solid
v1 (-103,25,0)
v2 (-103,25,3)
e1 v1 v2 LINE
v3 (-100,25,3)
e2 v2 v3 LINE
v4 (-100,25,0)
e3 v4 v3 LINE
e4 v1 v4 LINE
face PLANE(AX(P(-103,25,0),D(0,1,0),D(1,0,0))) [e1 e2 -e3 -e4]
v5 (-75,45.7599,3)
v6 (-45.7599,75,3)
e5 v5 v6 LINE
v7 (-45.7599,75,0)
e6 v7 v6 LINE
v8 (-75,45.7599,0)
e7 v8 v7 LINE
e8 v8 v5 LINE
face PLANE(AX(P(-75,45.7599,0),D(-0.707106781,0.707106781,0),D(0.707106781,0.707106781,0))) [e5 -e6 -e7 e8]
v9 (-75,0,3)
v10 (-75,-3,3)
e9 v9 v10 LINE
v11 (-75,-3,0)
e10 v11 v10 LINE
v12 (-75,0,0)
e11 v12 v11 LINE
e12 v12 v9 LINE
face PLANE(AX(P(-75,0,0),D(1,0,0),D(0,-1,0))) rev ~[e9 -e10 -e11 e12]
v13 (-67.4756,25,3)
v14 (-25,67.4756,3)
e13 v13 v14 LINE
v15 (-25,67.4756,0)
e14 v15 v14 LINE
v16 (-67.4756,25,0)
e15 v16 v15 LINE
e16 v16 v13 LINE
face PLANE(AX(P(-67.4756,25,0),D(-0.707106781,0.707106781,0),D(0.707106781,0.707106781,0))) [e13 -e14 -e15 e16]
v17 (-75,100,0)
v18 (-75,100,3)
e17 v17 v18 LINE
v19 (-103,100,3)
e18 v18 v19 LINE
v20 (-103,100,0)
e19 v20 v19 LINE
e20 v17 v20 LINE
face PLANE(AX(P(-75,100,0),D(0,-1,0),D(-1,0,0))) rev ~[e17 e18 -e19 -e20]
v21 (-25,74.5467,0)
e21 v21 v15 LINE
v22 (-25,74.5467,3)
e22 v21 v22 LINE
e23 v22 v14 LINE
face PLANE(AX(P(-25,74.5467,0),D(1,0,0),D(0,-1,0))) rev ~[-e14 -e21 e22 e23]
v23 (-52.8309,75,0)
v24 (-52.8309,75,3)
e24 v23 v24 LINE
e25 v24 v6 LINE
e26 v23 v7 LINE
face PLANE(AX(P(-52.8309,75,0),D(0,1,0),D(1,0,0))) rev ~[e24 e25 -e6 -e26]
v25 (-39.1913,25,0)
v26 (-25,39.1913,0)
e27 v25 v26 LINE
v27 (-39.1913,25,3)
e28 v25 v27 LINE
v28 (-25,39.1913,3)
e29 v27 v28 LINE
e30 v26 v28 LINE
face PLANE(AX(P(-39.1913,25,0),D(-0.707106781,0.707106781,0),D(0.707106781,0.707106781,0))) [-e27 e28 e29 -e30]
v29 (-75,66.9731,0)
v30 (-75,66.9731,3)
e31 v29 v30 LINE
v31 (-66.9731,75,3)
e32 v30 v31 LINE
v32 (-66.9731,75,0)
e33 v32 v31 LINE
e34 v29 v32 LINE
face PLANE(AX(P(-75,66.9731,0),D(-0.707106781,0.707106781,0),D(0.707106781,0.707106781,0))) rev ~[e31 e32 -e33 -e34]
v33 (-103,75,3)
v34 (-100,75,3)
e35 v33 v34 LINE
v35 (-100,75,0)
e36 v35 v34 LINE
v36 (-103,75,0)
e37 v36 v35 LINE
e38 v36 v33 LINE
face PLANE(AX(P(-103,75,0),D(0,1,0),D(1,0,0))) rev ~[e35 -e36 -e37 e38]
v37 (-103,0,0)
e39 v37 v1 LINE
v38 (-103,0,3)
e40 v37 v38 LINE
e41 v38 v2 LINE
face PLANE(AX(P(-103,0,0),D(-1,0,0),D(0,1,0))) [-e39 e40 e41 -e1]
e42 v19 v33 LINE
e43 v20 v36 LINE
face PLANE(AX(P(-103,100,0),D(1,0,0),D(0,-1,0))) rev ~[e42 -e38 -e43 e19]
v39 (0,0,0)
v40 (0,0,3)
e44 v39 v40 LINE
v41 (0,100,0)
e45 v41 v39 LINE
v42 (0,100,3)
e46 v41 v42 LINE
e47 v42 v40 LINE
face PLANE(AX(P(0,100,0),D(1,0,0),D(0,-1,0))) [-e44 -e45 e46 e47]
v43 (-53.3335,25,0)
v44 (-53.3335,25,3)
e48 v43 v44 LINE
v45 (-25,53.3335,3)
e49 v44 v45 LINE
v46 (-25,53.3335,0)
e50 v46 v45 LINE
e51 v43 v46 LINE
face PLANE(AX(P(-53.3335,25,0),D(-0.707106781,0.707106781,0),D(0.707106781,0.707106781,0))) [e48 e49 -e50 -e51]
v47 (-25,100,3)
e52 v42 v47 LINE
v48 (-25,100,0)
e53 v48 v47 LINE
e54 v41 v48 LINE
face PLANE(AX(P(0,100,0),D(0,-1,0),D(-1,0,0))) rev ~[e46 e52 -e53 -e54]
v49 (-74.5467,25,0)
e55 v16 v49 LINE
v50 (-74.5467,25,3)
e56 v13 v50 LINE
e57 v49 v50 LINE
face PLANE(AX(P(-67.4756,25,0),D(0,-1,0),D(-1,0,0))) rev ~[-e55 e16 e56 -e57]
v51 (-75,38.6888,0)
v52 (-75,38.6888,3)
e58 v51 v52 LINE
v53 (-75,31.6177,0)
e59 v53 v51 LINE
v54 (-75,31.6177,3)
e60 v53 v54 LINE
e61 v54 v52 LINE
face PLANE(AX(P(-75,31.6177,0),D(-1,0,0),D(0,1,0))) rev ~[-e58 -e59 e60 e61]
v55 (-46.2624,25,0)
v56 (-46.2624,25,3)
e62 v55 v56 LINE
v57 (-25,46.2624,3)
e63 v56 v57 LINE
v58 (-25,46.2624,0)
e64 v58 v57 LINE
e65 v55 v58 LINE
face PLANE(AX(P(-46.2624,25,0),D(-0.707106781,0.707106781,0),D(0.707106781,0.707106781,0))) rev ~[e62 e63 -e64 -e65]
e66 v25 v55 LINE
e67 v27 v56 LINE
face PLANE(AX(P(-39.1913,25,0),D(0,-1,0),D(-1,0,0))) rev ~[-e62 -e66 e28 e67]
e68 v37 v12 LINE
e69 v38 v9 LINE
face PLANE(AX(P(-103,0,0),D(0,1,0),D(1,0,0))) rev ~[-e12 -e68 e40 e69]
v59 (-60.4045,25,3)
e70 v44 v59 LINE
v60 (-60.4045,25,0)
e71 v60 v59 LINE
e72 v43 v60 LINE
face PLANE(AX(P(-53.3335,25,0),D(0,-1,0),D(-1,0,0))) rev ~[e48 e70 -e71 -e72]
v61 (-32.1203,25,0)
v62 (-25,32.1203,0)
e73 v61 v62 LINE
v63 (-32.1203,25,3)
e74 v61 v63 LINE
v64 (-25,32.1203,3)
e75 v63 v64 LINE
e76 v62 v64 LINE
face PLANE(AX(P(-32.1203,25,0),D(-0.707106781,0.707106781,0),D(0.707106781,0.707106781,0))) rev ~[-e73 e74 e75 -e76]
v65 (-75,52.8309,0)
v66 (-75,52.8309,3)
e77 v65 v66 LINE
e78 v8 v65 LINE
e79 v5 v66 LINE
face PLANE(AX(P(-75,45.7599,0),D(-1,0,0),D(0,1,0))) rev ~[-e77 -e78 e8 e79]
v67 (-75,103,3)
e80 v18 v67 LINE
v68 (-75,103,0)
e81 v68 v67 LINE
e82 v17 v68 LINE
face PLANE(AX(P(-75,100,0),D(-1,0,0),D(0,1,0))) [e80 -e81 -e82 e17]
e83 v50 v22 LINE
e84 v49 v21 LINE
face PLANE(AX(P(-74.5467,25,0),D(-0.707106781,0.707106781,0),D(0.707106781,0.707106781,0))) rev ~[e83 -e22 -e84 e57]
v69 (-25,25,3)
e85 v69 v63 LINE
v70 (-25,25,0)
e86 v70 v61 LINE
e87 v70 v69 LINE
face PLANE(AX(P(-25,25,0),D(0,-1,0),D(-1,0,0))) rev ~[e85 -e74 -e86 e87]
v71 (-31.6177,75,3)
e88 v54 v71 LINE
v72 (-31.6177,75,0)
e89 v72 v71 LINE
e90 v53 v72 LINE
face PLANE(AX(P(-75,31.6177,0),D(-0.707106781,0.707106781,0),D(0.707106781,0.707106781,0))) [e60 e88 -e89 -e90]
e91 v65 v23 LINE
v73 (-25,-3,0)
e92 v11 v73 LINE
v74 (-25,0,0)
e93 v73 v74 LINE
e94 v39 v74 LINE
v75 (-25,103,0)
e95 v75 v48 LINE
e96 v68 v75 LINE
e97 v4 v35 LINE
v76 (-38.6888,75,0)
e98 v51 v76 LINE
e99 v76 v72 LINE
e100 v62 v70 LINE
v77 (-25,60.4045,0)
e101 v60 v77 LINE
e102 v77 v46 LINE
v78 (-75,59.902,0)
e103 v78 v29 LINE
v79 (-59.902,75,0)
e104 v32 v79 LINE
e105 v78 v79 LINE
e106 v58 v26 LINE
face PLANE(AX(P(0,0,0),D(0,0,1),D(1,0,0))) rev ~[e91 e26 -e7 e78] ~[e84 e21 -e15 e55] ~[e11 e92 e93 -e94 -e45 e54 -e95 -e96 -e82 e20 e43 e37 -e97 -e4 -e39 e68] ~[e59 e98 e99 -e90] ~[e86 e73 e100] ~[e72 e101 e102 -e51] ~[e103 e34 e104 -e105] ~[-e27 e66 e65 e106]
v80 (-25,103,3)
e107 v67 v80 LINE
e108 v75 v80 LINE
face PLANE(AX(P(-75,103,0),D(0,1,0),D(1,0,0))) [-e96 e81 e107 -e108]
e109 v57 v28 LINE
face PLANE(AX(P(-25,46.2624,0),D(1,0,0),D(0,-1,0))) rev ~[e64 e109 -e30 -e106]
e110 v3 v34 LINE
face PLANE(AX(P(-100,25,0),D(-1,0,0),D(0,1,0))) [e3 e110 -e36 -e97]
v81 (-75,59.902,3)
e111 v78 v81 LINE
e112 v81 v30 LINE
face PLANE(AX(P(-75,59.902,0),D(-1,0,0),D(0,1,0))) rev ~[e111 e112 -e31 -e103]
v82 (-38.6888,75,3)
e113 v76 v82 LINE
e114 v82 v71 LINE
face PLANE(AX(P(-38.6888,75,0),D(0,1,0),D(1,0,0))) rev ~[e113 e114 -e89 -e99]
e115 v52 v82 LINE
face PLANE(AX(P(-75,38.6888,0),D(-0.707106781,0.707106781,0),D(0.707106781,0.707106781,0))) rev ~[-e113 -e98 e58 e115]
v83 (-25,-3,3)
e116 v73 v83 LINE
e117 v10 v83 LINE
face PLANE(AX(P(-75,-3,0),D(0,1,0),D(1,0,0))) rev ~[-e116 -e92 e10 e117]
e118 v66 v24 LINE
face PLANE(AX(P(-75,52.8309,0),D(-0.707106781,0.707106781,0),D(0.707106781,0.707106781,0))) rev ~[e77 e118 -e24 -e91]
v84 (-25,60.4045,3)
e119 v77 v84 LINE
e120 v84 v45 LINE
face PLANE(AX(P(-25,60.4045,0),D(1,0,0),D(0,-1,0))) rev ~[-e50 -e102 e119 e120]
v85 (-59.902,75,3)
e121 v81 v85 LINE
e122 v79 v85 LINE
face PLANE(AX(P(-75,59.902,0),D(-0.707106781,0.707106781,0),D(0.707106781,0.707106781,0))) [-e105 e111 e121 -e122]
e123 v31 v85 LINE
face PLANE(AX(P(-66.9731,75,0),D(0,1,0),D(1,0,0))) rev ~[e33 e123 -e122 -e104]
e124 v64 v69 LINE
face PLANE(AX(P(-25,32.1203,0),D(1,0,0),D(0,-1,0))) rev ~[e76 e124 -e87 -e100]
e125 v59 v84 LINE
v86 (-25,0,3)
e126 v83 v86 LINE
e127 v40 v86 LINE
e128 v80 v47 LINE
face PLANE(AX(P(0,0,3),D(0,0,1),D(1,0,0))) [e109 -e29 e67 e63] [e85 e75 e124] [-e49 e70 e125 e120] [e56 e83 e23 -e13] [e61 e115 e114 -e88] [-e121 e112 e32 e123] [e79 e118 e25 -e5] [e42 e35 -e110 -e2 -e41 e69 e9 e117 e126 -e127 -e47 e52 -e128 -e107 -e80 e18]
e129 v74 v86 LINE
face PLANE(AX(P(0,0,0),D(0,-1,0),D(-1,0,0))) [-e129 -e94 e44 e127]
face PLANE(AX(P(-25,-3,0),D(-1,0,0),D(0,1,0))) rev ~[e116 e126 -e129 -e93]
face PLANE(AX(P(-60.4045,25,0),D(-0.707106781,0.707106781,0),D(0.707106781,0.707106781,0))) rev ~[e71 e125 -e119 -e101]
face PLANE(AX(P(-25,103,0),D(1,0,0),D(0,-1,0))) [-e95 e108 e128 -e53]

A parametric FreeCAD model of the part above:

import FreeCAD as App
import Part
import Sketcher
Q = App.Units.Quantity


def add_polygon(sketch, points):
    """Adds a closed chain of lines whose ends are joined by coincident constraints."""
    first, n = sketch.GeometryCount, len(points)
    for a, b in zip(points, points[1:] + points[:1]):
        sketch.addGeometry(Part.LineSegment(App.Vector(*a, 0), App.Vector(*b, 0)), False)
    for i in range(n):
        sketch.addConstraint(Sketcher.Constraint("Coincident", first + i, 2, first + (i + 1) % n, 1))

doc = App.newDocument("Part")
params = doc.addObject("Spreadsheet::Sheet", "Params")
for row, (alias, value) in enumerate([
    ("sketch1_width", "25 mm"),
    ("sketch1_width2", "50 mm"),
    ("sketch1_width3", "3 mm"),
    ("pad1_length", "3 mm"),
], start=1):
    params.set(f"A{row}", alias)
    params.set(f"B{row}", "=" + value)
    params.setAlias(f"B{row}", alias)

body = doc.addObject("PartDesign::Body", "Body")

sketch1 = body.newObject("Sketcher::SketchObject", "Sketch")
sketch1.AttachmentSupport = (doc.getObject("XY_Plane"), [""])
sketch1.MapMode = "FlatFace"
add_polygon(sketch1, [(0, 0), (0, 100), (-25, 100), (-25, 103), (-75, 103), (-75, 100), (-103, 100), (-103, 75), (-100, 75), (-100, 25), (-103, 25), (-103, 0), (-75, 0), (-75, -3), (-25, -3), (-25, 0)])
add_polygon(sketch1, [(-25, 25), (-32.1203, 25), (-25, 32.1203)])
add_polygon(sketch1, [(-39.1913, 25), (-46.2624, 25), (-25, 46.2624), (-25, 39.1913)])
add_polygon(sketch1, [(-53.3335, 25), (-60.4045, 25), (-25, 60.4045), (-25, 53.3335)])
add_polygon(sketch1, [(-67.4756, 25), (-74.5467, 25), (-25, 74.5467), (-25, 67.4756)])
add_polygon(sketch1, [(-75, 31.6177), (-75, 38.6888), (-38.6888, 75), (-31.6177, 75)])
add_polygon(sketch1, [(-75, 45.7599), (-75, 52.8309), (-52.8309, 75), (-45.7599, 75)])
add_polygon(sketch1, [(-75, 59.902), (-75, 66.9731), (-66.9731, 75), (-59.902, 75)])
sketch1.addConstraint(Sketcher.Constraint("Vertical", 0))
sketch1.addConstraint(Sketcher.Constraint("Horizontal", 1))
sketch1.addConstraint(Sketcher.Constraint("Vertical", 2))
sketch1.addConstraint(Sketcher.Constraint("Horizontal", 3))
sketch1.addConstraint(Sketcher.Constraint("Vertical", 4))
sketch1.addConstraint(Sketcher.Constraint("Horizontal", 5))
sketch1.addConstraint(Sketcher.Constraint("Vertical", 6))
sketch1.addConstraint(Sketcher.Constraint("Horizontal", 7))
sketch1.addConstraint(Sketcher.Constraint("Vertical", 8))
sketch1.addConstraint(Sketcher.Constraint("Horizontal", 9))
sketch1.addConstraint(Sketcher.Constraint("Vertical", 10))
sketch1.addConstraint(Sketcher.Constraint("Horizontal", 11))
sketch1.addConstraint(Sketcher.Constraint("Vertical", 12))
sketch1.addConstraint(Sketcher.Constraint("Horizontal", 13))
sketch1.addConstraint(Sketcher.Constraint("Vertical", 14))
sketch1.addConstraint(Sketcher.Constraint("Horizontal", 15))
sketch1.addConstraint(Sketcher.Constraint("Horizontal", 16))
sketch1.addConstraint(Sketcher.Constraint("Vertical", 18))
sketch1.addConstraint(Sketcher.Constraint("Horizontal", 19))
sketch1.addConstraint(Sketcher.Constraint("Vertical", 21))
sketch1.addConstraint(Sketcher.Constraint("Horizontal", 23))
sketch1.addConstraint(Sketcher.Constraint("Vertical", 25))
sketch1.addConstraint(Sketcher.Constraint("Horizontal", 27))
sketch1.addConstraint(Sketcher.Constraint("Vertical", 29))
sketch1.addConstraint(Sketcher.Constraint("Vertical", 31))
sketch1.addConstraint(Sketcher.Constraint("Horizontal", 33))
sketch1.addConstraint(Sketcher.Constraint("Vertical", 35))
sketch1.addConstraint(Sketcher.Constraint("Horizontal", 37))
sketch1.addConstraint(Sketcher.Constraint("Vertical", 39))
sketch1.addConstraint(Sketcher.Constraint("Horizontal", 41))
sketch1.addConstraint(Sketcher.Constraint("Coincident", 15, 2, -1, 1))
sketch1.addConstraint(Sketcher.Constraint("PointOnObject", 10, 2, -1))
sketch1.addConstraint(Sketcher.Constraint("Parallel", 17, 20))
sketch1.addConstraint(Sketcher.Constraint("Parallel", 20, 22))
sketch1.addConstraint(Sketcher.Constraint("Parallel", 22, 24))
sketch1.addConstraint(Sketcher.Constraint("Parallel", 24, 26))
sketch1.addConstraint(Sketcher.Constraint("Parallel", 26, 28))
sketch1.addConstraint(Sketcher.Constraint("Parallel", 28, 30))
sketch1.addConstraint(Sketcher.Constraint("Parallel", 30, 32))
sketch1.addConstraint(Sketcher.Constraint("Parallel", 32, 34))
sketch1.addConstraint(Sketcher.Constraint("Parallel", 34, 36))
sketch1.addConstraint(Sketcher.Constraint("Parallel", 36, 38))
sketch1.addConstraint(Sketcher.Constraint("Parallel", 38, 40))
sketch1.addConstraint(Sketcher.Constraint("Parallel", 40, 42))
sketch1.addConstraint(Sketcher.Constraint("Horizontal", 1, 2, 4, 2))
sketch1.addConstraint(Sketcher.Constraint("Horizontal", 9, 2, 16, 2))
sketch1.addConstraint(Sketcher.Constraint("Horizontal", 18, 2, 19, 2))
sketch1.addConstraint(Sketcher.Constraint("Horizontal", 22, 2, 23, 2))
sketch1.addConstraint(Sketcher.Constraint("Horizontal", 26, 2, 27, 2))
sketch1.addConstraint(Sketcher.Constraint("Horizontal", 7, 2, 32, 2))
sketch1.addConstraint(Sketcher.Constraint("Horizontal", 33, 2, 36, 2))
sketch1.addConstraint(Sketcher.Constraint("Horizontal", 37, 2, 40, 2))
sketch1.addConstraint(Sketcher.Constraint("Vertical", 6, 2, 9, 2))
sketch1.addConstraint(Sketcher.Constraint("Vertical", 4, 2, 11, 2))
sketch1.addConstraint(Sketcher.Constraint("Vertical", 2, 2, 13, 2))
sketch1.addConstraint(Sketcher.Constraint("Vertical", 14, 2, 17, 2))
sketch1.addConstraint(Sketcher.Constraint("Vertical", 18, 2, 20, 2))
sketch1.addConstraint(Sketcher.Constraint("Vertical", 21, 2, 24, 2))
sketch1.addConstraint(Sketcher.Constraint("Vertical", 25, 2, 28, 2))
sketch1.addConstraint(Sketcher.Constraint("Vertical", 12, 2, 31, 2))
sketch1.addConstraint(Sketcher.Constraint("Vertical", 34, 2, 35, 2))
sketch1.addConstraint(Sketcher.Constraint("Vertical", 38, 2, 39, 2))
sketch1.addConstraint(Sketcher.Constraint("Equal", 19, 23))
sketch1.addConstraint(Sketcher.Constraint("Equal", 23, 27))
sketch1.addConstraint(Sketcher.Constraint("Equal", 27, 33))
sketch1.addConstraint(Sketcher.Constraint("Equal", 33, 37))
sketch1.addConstraint(Sketcher.Constraint("Equal", 37, 41))
sketch1.addConstraint(Sketcher.Constraint("Equal", 9, 2))
sketch1.addConstraint(Sketcher.Constraint("Equal", 15, 6))
sketch1.addConstraint(Sketcher.Constraint("Equal", 13, 8))
sketch1.addConstraint(Sketcher.Constraint("Equal", 6, 10))
sketch1.addConstraint(Sketcher.Constraint("Equal", 4, 12))
sketch1.addConstraint(Sketcher.Constraint("Equal", 16, 18))
sketch1.addConstraint(Sketcher.Constraint("DistanceX", 1, 2, 1, 1, Q("25 mm")))
sketch1.addConstraint(Sketcher.Constraint("DistanceX", 3, 2, 3, 1, Q("50 mm")))
sketch1.addConstraint(Sketcher.Constraint("DistanceX", 7, 1, 7, 2, Q("3 mm")))
sketch1.addConstraint(Sketcher.Constraint("DistanceX", 7, 2, -1, 1, Q("100 mm")))
sketch1.addConstraint(Sketcher.Constraint("Distance", 40, Q("11.3518 mm")))
sketch1.addConstraint(Sketcher.Constraint("DistanceX", 19, 2, 19, 1, Q("7.071 mm")))
sketch1.addConstraint(Sketcher.Constraint("DistanceX", 37, 2, -1, 1, Q("45.76 mm")))
sketch1.addConstraint(Sketcher.Constraint("DistanceX", 16, 2, 16, 1, Q("7.1203 mm")))
sketch1.addConstraint(Sketcher.Constraint("DistanceX", 19, 2, 16, 2, Q("14.142 mm")))
sketch1.addConstraint(Sketcher.Constraint("DistanceX", 23, 2, 19, 2, Q("14.142 mm")))
sketch1.addConstraint(Sketcher.Constraint("DistanceY", 24, 2, 29, 2, Q("7.071 mm")))
sketch1.addConstraint(Sketcher.Constraint("DistanceY", 31, 2, 35, 2, Q("14.142 mm")))
sketch1.setExpression("Constraints[116]", "Params.sketch1_width")
sketch1.setExpression("Constraints[117]", "Params.sketch1_width2")
sketch1.setExpression("Constraints[118]", "Params.sketch1_width3")
pad1 = body.newObject("PartDesign::Pad", "Pad")
pad1.Profile = sketch1
pad1.setExpression("Length", "Params.pad1_length")

doc.recompute()
